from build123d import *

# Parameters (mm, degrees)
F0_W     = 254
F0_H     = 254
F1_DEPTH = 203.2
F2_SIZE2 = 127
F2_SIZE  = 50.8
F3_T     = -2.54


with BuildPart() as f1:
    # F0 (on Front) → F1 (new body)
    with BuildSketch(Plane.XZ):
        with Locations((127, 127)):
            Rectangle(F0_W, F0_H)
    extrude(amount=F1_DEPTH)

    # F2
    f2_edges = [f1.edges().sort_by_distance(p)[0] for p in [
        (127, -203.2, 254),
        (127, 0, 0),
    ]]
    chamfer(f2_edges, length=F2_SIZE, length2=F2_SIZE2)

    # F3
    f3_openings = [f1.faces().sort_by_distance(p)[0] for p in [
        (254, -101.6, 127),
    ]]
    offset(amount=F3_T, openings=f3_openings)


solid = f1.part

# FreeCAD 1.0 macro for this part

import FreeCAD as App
import Part
import Sketcher
Q = App.Units.Quantity


def edges_at(feature, points):
    """Names of the edges that pass closest to the given points."""
    edges = feature.Shape.Edges
    near = lambda p: min(range(len(edges)), key=lambda i: edges[i].distToShape(Part.Vertex(*p))[0])
    return sorted({f"Edge{near(p) + 1}" for p in points})


def faces_at(feature, points):
    """Names of the faces that lie closest to the given points."""
    faces = feature.Shape.Faces
    near = lambda p: min(range(len(faces)), key=lambda i: faces[i].distToShape(Part.Vertex(*p))[0])
    return sorted({f"Face{near(p) + 1}" for p in points})


def add_polygon(sketch, points):
    """Adds a closed chain of lines whose ends are joined by coincident constraints."""
    first, n = sketch.GeometryCount, len(points)
    for a, b in zip(points, points[1:] + points[:1]):
        sketch.addGeometry(Part.LineSegment(App.Vector(*a, 0), App.Vector(*b, 0)), False)
    for i in range(n):
        sketch.addConstraint(Sketcher.Constraint("Coincident", first + i, 2, first + (i + 1) % n, 1))

doc = App.newDocument("Part")
params = doc.addObject("Spreadsheet::Sheet", "Params")
for row, (alias, value) in enumerate([
    ("sketch1_width", "10 in"),
    ("pad1_length", "8 in"),
    ("chamfer_size", "2 in"),
    ("chamfer_size2", "5 in"),
    ("thickness_wall", "0.1 in"),
], start=1):
    params.set(f"A{row}", alias)
    params.set(f"B{row}", "=" + value)
    params.setAlias(f"B{row}", alias)

body = doc.addObject("PartDesign::Body", "Body")

# Sketch on XZ plane
sketch1 = doc.addObject("Sketcher::SketchObject", "Sketch")
body.addObject(sketch1)
sketch1.AttachmentSupport = (doc.XZ_Plane, [""])
sketch1.MapMode = "FlatFace"
add_polygon(sketch1, [(0, 254), (0, 0), (254, 0), (254, 254)])  # lines 0-3
sketch1.addConstraint([
    Sketcher.Constraint("Vertical", 0),
    Sketcher.Constraint("Horizontal", 1),
    Sketcher.Constraint("Vertical", 2),
    Sketcher.Constraint("Horizontal", 3),
    Sketcher.Constraint("Coincident", 0, 2, -1, 1),
    Sketcher.Constraint("Equal", 3, 0),
    Sketcher.Constraint("DistanceX", 1, 1, 1, 2, Q("10 in")),
])
sketch1.setExpression("Constraints[10]", "Params.sketch1_width")
pad1 = doc.addObject("PartDesign::Pad", "Pad")
body.addObject(pad1)
pad1.Profile = sketch1
pad1.setExpression("Length", "Params.pad1_length")
doc.recompute()

chamfer = doc.addObject("PartDesign::Chamfer", "Chamfer")
body.addObject(chamfer)
chamfer.Base = (pad1, edges_at(pad1, [(127, -203.2, 254), (127, 0, 0)]))
chamfer.ChamferType = "Two distances"
chamfer.setExpression("Size", "Params.chamfer_size")
chamfer.setExpression("Size2", "Params.chamfer_size2")
doc.recompute()

thickness = doc.addObject("PartDesign::Thickness", "Thickness")
body.addObject(thickness)
thickness.Base = (chamfer, faces_at(chamfer, [(254, -101.6, 127)]))
thickness.setExpression("Value", "Params.thickness_wall")
thickness.Reversed = True
thickness.Join = "Arc"

doc.recompute()
